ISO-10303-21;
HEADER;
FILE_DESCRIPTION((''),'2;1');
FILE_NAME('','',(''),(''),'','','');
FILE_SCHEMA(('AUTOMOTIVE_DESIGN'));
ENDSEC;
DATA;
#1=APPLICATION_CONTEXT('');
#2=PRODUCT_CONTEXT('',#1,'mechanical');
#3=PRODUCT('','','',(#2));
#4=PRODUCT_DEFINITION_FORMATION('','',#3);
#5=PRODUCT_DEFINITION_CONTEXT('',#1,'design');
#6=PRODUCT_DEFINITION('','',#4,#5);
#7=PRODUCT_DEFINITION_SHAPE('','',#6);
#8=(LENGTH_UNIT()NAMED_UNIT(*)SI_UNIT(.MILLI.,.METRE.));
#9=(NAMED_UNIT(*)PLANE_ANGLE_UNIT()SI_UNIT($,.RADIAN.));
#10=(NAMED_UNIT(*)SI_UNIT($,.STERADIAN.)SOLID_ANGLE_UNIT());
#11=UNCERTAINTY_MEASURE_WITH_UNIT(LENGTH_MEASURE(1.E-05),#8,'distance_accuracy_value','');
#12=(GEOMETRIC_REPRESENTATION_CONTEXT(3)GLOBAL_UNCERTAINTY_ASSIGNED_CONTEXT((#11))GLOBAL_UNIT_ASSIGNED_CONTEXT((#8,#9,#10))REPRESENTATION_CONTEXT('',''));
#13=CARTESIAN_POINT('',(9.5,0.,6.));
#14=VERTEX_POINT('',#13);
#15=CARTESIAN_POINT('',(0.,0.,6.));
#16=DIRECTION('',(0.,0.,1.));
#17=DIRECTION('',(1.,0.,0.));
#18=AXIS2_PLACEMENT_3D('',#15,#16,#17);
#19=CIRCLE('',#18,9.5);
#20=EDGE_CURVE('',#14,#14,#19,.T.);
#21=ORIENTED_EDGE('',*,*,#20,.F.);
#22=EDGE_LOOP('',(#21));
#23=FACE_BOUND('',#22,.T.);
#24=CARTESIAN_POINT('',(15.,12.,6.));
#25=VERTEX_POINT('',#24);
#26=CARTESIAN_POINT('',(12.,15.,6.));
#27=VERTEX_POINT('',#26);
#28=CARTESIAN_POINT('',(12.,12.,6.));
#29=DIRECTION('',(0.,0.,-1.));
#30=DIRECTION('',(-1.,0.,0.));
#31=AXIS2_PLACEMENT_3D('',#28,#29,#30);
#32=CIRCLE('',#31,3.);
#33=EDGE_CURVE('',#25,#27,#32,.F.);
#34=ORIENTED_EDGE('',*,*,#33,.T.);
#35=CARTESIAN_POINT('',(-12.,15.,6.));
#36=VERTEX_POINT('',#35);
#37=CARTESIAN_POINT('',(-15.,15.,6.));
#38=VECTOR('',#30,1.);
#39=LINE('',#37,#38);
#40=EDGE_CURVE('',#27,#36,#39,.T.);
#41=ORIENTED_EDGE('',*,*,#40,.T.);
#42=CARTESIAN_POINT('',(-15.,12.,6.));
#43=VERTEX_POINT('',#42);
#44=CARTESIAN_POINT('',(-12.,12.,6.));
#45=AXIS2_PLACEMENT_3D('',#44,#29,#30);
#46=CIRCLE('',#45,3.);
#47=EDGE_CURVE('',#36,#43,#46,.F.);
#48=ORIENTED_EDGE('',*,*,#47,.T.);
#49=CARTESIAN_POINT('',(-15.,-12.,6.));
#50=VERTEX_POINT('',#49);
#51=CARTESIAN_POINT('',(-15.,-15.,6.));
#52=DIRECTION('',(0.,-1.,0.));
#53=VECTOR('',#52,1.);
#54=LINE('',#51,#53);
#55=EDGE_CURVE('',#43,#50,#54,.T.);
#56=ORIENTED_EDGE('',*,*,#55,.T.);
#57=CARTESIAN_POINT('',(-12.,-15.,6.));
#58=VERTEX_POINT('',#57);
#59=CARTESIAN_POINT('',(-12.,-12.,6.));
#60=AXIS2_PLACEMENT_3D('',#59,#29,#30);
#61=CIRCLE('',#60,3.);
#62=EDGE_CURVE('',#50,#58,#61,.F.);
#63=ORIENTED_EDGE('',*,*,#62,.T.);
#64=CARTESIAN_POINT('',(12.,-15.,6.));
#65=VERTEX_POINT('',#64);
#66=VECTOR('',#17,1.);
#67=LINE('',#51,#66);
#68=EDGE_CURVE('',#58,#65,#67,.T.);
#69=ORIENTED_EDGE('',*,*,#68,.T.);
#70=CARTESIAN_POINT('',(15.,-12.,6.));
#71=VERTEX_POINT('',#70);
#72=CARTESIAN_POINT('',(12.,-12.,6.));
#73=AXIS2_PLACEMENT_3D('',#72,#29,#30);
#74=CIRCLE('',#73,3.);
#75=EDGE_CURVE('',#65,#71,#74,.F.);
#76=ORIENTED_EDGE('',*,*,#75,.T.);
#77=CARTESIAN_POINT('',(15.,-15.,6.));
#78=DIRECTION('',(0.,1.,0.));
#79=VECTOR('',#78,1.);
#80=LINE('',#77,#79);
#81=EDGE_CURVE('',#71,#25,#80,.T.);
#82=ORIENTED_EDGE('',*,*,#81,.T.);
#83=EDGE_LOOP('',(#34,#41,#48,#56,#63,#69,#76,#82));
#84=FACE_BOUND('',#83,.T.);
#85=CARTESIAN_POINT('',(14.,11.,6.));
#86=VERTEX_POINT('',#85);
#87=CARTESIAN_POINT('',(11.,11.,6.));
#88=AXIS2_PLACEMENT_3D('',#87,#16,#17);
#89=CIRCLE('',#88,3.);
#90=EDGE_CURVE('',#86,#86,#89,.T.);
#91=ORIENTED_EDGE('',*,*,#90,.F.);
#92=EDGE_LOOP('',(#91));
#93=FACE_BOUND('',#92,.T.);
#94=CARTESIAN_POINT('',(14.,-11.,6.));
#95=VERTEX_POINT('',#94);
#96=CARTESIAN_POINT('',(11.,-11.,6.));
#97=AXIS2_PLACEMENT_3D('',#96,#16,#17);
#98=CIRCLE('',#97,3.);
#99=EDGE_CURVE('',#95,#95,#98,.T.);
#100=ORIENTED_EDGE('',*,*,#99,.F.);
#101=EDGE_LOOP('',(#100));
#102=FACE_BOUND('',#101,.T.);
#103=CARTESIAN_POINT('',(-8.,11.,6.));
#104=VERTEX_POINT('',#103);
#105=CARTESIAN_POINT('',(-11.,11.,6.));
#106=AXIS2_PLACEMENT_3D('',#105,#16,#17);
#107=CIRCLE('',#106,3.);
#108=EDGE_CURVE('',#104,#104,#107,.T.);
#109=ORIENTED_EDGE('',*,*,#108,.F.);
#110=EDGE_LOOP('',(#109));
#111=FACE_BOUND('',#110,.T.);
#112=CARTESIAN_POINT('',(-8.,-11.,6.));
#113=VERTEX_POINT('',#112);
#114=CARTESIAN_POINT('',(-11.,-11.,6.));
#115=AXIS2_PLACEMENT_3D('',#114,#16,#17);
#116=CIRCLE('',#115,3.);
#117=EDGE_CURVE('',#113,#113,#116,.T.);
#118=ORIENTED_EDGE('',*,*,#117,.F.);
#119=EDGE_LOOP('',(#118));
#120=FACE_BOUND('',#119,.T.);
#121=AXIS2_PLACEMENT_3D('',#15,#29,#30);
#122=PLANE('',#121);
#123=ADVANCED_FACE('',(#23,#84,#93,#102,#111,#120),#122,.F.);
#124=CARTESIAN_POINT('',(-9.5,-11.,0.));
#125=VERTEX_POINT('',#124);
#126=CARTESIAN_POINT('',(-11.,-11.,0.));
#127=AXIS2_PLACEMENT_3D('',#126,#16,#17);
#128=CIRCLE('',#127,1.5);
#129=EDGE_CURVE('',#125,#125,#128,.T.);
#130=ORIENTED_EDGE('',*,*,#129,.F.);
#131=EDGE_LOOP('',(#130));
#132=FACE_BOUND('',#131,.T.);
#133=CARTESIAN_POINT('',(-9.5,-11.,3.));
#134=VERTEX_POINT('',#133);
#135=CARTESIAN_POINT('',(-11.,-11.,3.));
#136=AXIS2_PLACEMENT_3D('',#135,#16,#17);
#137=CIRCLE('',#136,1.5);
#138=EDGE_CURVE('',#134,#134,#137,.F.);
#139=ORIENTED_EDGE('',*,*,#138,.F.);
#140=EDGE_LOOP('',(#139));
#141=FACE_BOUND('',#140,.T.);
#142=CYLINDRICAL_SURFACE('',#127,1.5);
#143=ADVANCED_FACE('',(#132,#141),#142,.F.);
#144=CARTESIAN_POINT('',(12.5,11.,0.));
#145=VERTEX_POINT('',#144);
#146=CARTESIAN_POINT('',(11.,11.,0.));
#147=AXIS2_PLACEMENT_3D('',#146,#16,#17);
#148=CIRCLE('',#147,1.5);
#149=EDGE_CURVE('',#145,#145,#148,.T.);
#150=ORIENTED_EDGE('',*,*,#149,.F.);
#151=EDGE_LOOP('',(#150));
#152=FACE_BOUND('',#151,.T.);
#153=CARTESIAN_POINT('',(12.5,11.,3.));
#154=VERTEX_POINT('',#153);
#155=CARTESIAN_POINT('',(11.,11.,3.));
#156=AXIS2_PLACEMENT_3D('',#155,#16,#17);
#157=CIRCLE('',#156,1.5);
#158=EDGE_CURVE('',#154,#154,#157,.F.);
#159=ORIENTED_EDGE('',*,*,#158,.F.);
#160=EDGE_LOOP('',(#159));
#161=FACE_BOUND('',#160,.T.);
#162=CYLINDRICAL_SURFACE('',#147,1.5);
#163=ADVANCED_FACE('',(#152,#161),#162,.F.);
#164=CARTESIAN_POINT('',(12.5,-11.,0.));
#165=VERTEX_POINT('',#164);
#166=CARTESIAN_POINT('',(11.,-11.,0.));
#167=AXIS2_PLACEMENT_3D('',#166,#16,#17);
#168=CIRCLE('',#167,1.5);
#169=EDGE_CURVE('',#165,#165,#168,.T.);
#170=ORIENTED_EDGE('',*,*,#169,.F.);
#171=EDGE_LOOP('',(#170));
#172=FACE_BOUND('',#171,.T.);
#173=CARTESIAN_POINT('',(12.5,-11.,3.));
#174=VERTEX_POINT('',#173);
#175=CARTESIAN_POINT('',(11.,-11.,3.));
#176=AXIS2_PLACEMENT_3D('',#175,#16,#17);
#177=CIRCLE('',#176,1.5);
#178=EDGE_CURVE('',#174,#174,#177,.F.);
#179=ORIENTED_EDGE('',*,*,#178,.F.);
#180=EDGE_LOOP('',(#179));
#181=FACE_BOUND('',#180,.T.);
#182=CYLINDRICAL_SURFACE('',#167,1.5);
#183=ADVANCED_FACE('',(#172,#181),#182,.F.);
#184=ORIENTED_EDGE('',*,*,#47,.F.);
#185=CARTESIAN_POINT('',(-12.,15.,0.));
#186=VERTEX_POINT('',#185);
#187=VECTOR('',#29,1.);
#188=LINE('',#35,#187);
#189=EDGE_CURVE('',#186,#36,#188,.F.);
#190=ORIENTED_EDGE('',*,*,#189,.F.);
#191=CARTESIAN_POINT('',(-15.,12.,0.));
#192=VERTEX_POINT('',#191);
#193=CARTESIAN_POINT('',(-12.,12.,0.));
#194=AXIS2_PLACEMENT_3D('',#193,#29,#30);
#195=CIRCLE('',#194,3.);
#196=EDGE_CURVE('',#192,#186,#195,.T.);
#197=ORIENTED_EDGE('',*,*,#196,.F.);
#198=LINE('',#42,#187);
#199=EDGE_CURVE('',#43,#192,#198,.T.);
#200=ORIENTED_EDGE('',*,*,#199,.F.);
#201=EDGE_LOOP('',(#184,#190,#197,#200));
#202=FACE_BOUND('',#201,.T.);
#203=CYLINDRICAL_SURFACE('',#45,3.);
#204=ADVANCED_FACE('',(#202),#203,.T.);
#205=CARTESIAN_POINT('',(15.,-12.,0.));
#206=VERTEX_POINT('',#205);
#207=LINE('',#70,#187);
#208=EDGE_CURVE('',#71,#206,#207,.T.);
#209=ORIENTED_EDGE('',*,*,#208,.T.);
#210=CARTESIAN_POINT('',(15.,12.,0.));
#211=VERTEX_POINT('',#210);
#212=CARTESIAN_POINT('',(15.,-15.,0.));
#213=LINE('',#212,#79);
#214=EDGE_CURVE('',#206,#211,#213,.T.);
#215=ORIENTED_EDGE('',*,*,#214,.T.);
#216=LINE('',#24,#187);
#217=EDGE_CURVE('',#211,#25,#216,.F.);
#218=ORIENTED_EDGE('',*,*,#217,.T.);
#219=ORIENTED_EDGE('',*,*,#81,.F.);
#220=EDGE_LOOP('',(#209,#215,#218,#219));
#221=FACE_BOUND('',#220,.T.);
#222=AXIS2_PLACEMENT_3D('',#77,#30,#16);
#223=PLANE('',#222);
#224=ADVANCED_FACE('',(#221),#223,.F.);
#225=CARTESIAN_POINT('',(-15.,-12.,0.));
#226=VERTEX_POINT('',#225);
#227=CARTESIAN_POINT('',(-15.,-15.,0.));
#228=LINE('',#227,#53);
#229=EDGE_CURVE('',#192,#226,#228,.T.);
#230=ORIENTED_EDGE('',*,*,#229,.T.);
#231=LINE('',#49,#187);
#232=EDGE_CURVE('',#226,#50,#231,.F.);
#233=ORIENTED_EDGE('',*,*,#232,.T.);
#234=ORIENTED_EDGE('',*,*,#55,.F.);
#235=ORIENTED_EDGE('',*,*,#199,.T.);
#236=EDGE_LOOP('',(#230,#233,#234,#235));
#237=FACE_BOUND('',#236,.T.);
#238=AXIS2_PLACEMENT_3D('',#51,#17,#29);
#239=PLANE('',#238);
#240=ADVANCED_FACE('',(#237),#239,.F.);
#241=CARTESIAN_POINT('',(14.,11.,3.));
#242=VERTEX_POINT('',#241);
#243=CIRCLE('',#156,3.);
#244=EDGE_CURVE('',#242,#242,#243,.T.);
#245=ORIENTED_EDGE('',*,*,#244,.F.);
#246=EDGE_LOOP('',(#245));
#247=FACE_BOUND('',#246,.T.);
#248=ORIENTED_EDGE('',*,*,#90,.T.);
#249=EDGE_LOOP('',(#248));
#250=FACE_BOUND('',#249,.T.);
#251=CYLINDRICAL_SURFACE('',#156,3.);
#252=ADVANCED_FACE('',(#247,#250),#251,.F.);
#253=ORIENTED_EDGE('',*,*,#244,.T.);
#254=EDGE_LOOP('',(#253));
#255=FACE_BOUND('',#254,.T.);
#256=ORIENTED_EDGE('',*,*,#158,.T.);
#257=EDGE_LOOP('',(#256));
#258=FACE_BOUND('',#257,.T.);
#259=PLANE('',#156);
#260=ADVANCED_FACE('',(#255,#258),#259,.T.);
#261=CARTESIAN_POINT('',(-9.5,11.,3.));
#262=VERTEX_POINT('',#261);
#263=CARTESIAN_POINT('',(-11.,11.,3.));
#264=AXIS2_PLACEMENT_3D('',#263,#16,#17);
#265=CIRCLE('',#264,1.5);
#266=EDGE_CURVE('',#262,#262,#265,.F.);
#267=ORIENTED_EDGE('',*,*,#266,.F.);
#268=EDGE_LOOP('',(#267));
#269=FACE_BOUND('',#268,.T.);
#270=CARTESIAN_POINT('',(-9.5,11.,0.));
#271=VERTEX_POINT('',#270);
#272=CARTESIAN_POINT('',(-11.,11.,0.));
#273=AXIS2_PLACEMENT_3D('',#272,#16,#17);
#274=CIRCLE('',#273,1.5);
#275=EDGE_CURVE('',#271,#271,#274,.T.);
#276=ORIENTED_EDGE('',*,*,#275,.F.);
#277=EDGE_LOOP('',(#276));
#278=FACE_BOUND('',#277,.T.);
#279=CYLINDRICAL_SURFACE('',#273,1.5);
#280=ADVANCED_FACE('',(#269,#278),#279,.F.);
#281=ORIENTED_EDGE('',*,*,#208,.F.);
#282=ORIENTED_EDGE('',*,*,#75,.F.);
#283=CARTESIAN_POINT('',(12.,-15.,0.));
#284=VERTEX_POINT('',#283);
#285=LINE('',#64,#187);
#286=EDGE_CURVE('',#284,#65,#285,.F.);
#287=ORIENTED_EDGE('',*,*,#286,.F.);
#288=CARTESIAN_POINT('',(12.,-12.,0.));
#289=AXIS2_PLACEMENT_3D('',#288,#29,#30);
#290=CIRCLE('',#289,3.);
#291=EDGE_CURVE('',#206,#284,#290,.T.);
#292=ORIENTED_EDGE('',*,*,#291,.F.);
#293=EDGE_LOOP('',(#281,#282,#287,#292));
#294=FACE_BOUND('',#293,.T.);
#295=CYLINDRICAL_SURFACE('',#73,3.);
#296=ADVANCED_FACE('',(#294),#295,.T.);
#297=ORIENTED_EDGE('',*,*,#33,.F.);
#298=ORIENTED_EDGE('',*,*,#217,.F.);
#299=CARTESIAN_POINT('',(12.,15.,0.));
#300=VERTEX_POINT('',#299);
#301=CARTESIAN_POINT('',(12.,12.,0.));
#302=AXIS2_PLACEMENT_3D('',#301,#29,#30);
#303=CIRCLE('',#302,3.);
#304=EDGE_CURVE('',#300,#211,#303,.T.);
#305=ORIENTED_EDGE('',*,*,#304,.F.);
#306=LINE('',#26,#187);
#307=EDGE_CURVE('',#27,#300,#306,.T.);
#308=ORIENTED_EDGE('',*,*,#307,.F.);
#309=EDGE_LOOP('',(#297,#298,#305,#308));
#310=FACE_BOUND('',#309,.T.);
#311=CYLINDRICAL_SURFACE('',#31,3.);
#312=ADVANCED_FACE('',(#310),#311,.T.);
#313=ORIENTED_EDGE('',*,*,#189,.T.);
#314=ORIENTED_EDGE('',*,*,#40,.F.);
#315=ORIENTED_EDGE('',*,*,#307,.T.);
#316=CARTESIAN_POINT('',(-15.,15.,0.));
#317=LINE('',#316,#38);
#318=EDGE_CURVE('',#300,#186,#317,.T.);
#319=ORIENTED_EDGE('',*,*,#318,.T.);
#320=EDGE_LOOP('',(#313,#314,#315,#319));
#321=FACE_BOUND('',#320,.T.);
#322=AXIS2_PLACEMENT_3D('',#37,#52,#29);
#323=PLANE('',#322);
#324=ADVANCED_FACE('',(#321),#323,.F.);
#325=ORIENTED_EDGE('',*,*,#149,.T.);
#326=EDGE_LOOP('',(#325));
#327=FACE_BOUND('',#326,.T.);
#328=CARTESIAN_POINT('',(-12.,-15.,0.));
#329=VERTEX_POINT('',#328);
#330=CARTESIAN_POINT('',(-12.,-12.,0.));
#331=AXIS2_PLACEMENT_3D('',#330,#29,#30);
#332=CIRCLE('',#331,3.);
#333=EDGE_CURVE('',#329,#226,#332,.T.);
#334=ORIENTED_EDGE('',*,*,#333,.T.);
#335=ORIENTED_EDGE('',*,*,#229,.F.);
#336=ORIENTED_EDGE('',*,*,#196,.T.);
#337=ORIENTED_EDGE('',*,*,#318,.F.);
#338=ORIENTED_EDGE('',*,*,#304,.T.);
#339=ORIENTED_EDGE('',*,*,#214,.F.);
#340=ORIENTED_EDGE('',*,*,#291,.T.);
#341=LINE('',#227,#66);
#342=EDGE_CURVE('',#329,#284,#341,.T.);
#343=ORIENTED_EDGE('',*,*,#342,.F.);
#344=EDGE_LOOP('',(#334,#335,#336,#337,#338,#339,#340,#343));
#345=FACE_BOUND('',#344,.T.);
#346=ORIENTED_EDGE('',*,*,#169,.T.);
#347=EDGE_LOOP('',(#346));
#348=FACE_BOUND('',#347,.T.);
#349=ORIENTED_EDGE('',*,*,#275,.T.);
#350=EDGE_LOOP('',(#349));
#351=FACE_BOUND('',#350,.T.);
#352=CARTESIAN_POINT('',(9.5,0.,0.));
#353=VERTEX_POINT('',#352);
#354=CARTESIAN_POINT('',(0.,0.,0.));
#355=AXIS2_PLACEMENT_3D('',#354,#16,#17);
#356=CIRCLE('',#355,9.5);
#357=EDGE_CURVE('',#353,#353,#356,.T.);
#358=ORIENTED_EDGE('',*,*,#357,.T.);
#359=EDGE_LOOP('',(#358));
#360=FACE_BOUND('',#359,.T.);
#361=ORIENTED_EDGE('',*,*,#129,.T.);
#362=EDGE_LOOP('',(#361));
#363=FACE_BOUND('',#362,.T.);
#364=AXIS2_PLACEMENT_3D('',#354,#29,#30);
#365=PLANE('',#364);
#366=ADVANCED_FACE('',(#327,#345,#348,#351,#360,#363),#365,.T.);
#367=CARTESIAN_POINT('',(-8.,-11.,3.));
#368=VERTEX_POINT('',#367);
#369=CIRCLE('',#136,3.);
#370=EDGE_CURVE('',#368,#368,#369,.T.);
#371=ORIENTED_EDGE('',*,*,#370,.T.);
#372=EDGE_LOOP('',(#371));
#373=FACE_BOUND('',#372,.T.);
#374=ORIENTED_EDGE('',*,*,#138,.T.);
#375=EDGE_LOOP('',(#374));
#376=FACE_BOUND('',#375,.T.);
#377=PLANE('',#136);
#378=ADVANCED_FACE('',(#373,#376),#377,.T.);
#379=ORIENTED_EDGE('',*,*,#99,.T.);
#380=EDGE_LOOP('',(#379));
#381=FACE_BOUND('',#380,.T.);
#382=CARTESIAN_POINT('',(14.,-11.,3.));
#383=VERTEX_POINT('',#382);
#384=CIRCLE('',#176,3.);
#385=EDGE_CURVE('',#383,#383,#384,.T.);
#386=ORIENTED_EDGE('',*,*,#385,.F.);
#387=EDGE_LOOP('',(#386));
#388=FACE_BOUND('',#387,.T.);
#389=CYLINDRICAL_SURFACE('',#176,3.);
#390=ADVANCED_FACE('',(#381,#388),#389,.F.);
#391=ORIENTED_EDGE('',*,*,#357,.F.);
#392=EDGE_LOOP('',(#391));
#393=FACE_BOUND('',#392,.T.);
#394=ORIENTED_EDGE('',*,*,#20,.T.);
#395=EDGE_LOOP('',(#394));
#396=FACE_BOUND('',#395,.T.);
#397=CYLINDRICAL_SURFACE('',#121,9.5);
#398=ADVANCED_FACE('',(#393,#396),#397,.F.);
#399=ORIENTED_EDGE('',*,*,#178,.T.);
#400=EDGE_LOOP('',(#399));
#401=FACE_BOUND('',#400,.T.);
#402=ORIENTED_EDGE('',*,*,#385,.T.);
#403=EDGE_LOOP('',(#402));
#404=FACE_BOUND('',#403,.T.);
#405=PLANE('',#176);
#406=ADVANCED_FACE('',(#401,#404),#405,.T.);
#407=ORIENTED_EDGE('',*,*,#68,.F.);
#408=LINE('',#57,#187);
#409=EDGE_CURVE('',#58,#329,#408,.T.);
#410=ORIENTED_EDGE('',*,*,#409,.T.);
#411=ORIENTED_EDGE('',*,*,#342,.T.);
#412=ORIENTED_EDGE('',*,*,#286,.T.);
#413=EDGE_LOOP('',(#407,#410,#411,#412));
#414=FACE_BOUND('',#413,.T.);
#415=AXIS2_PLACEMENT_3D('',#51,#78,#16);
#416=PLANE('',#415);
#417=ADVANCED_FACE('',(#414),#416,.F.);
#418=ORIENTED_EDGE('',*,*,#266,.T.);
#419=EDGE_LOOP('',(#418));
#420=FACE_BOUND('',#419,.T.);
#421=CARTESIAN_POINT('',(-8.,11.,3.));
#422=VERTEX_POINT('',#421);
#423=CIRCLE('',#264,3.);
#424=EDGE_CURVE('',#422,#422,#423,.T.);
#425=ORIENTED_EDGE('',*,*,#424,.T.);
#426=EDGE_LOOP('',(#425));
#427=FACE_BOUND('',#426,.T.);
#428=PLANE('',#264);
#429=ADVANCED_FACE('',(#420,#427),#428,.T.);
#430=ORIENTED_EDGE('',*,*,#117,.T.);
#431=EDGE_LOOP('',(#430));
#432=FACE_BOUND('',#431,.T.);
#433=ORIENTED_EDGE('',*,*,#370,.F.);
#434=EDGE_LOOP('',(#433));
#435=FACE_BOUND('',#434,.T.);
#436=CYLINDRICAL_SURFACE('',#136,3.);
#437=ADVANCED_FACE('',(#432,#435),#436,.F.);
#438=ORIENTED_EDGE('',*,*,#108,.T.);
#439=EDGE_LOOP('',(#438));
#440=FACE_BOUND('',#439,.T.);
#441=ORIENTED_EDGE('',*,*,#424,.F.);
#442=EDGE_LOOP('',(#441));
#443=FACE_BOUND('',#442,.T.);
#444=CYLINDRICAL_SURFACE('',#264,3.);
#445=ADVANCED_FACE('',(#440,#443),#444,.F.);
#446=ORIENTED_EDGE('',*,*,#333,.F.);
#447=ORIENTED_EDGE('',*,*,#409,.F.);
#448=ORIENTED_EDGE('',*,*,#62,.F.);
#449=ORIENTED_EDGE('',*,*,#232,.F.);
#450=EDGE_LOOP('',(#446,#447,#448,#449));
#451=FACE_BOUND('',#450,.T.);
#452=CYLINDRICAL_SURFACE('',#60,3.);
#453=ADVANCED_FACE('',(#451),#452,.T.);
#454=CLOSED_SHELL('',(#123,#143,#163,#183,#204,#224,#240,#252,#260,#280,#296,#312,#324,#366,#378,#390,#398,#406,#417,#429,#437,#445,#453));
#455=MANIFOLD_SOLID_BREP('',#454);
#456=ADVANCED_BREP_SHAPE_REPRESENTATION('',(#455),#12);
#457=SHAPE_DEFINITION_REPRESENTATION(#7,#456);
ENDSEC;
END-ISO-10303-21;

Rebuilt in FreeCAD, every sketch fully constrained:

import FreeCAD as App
import Part
import Sketcher

V = App.Vector


def edges_at(feature, points):
    """Names of the edges that pass closest to the given points."""
    edges = feature.Shape.Edges
    near = lambda p: min(range(len(edges)), key=lambda i: edges[i].distToShape(Part.Vertex(*p))[0])
    return sorted({f"Edge{near(p) + 1}" for p in points})

doc = App.newDocument("Part")
params = doc.addObject("Spreadsheet::Sheet", "Params")
for row, (alias, value) in enumerate([
    ("sketch1_diameter", "19 mm"),
    ("sketch1_width", "30 mm"),
    ("pad1_length", "6 mm"),
    ("sketch2_diameter", "3 mm"),
    ("sketch3_diameter", "6 mm"),
    ("pocket2_length", "3 mm"),
    ("fillet_radius", "3 mm"),
], start=1):
    params.set(f"A{row}", alias)
    params.set(f"B{row}", "=" + value)
    params.setAlias(f"B{row}", alias)

body = doc.addObject("PartDesign::Body", "Body")

sketch1 = doc.addObject("Sketcher::SketchObject", "Sketch")
body.addObject(sketch1)
sketch1.AttachmentSupport = (doc.XY_Plane, [""])
sketch1.MapMode = "FlatFace"
sketch1.addGeometry([
    Part.LineSegment(V(-15, 15, 0), V(-15, -15, 0)),
    Part.LineSegment(V(-15, -15, 0), V(15, -15, 0)),
    Part.LineSegment(V(15, -15, 0), V(15, 15, 0)),
    Part.LineSegment(V(15, 15, 0), V(-15, 15, 0)),
    Part.Circle(V(0, 0, 0), V(0, 0, 1), 10),
], False)
sketch1.addConstraint([
    Sketcher.Constraint("Coincident", 0, 2, 1, 1),
    Sketcher.Constraint("Coincident", 1, 2, 2, 1),
    Sketcher.Constraint("Coincident", 2, 2, 3, 1),
    Sketcher.Constraint("Coincident", 3, 2, 0, 1),
    Sketcher.Constraint("Vertical", 0),
    Sketcher.Constraint("Horizontal", 1),
    Sketcher.Constraint("Vertical", 2),
    Sketcher.Constraint("Horizontal", 3),
    Sketcher.Constraint("Coincident", 4, 3, -1, 1),
    Sketcher.Constraint("Symmetric", 0, 2, 2, 2, -1, 1),
    Sketcher.Constraint("Equal", 3, 0),
    Sketcher.Constraint("Diameter", 4, 19.0),
    Sketcher.Constraint("DistanceX", 1, 1, 1, 2, 30.0),
])
sketch1.setExpression("Constraints[11]", "Params.sketch1_diameter")
sketch1.setExpression("Constraints[12]", "Params.sketch1_width")
pad1 = doc.addObject("PartDesign::Pad", "Pad")
body.addObject(pad1)
pad1.Profile = sketch1
pad1.setExpression("Length", "Params.pad1_length")

sketch2 = doc.addObject("Sketcher::SketchObject", "Sketch001")
body.addObject(sketch2)
sketch2.AttachmentSupport = (doc.XY_Plane, [""])
sketch2.MapMode = "FlatFace"
sketch2.AttachmentOffset = App.Placement(V(0, 0, 6), App.Rotation())
sketch2.addGeometry([
    Part.Circle(V(-11, 11, 0), V(0, 0, 1), 1.5),
    Part.Circle(V(11, 11, 0), V(0, 0, 1), 1.5),
    Part.Circle(V(11, -11, 0), V(0, 0, 1), 1.5),
    Part.Circle(V(-11, -11, 0), V(0, 0, 1), 1.5),
], False)
sketch2.addConstraint([
    Sketcher.Constraint("Equal", 0, 1),
    Sketcher.Constraint("Equal", 1, 2),
    Sketcher.Constraint("Equal", 2, 3),
    Sketcher.Constraint("Symmetric", 0, 3, 2, 3, -1, 1),
    Sketcher.Constraint("Symmetric", 1, 3, 3, 3, -1, 1),
    Sketcher.Constraint("Symmetric", 0, 3, 1, 3, -2),
    Sketcher.Constraint("Diameter", 0, 3.0),
    Sketcher.Constraint("DistanceX", 0, 3, -1, 1, 11.0),
    Sketcher.Constraint("DistanceY", -1, 1, 0, 3, 11.0),
])
sketch2.setExpression("Constraints[6]", "Params.sketch2_diameter")
pocket1 = doc.addObject("PartDesign::Pocket", "Pocket")
body.addObject(pocket1)
pocket1.Profile = sketch2
pocket1.Type = "ThroughAll"

sketch3 = doc.addObject("Sketcher::SketchObject", "Sketch002")
body.addObject(sketch3)
sketch3.AttachmentSupport = (doc.XY_Plane, [""])
sketch3.MapMode = "FlatFace"
sketch3.AttachmentOffset = App.Placement(V(0, 0, 6), App.Rotation())
sketch3.addGeometry([
    Part.Circle(V(-11, 11, 0), V(0, 0, 1), 3),
    Part.Circle(V(11, 11, 0), V(0, 0, 1), 3),
    Part.Circle(V(11, -11, 0), V(0, 0, 1), 3),
    Part.Circle(V(-11, -11, 0), V(0, 0, 1), 3),
], False)
sketch3.addConstraint([
    Sketcher.Constraint("Equal", 0, 1),
    Sketcher.Constraint("Equal", 1, 2),
    Sketcher.Constraint("Equal", 2, 3),
    Sketcher.Constraint("Symmetric", 0, 3, 2, 3, -1, 1),
    Sketcher.Constraint("Symmetric", 1, 3, 3, 3, -1, 1),
    Sketcher.Constraint("Symmetric", 0, 3, 1, 3, -2),
    Sketcher.Constraint("Diameter", 0, 6.0),
    Sketcher.Constraint("DistanceX", 0, 3, -1, 1, 11.0),
    Sketcher.Constraint("DistanceY", -1, 1, 0, 3, 11.0),
])
sketch3.setExpression("Constraints[6]", "Params.sketch3_diameter")
pocket2 = doc.addObject("PartDesign::Pocket", "Pocket001")
body.addObject(pocket2)
pocket2.Profile = sketch3
pocket2.setExpression("Length", "Params.pocket2_length")
doc.recompute()

fillet = doc.addObject("PartDesign::Fillet", "Fillet")
body.addObject(fillet)
fillet.Base = (pocket2, edges_at(pocket2, [
    (15, -15, 3),
    (-15, -15, 3),
    (-15, 15, 3),
    (15, 15, 3),
]))
fillet.setExpression("Radius", "Params.fillet_radius")

doc.recompute()
